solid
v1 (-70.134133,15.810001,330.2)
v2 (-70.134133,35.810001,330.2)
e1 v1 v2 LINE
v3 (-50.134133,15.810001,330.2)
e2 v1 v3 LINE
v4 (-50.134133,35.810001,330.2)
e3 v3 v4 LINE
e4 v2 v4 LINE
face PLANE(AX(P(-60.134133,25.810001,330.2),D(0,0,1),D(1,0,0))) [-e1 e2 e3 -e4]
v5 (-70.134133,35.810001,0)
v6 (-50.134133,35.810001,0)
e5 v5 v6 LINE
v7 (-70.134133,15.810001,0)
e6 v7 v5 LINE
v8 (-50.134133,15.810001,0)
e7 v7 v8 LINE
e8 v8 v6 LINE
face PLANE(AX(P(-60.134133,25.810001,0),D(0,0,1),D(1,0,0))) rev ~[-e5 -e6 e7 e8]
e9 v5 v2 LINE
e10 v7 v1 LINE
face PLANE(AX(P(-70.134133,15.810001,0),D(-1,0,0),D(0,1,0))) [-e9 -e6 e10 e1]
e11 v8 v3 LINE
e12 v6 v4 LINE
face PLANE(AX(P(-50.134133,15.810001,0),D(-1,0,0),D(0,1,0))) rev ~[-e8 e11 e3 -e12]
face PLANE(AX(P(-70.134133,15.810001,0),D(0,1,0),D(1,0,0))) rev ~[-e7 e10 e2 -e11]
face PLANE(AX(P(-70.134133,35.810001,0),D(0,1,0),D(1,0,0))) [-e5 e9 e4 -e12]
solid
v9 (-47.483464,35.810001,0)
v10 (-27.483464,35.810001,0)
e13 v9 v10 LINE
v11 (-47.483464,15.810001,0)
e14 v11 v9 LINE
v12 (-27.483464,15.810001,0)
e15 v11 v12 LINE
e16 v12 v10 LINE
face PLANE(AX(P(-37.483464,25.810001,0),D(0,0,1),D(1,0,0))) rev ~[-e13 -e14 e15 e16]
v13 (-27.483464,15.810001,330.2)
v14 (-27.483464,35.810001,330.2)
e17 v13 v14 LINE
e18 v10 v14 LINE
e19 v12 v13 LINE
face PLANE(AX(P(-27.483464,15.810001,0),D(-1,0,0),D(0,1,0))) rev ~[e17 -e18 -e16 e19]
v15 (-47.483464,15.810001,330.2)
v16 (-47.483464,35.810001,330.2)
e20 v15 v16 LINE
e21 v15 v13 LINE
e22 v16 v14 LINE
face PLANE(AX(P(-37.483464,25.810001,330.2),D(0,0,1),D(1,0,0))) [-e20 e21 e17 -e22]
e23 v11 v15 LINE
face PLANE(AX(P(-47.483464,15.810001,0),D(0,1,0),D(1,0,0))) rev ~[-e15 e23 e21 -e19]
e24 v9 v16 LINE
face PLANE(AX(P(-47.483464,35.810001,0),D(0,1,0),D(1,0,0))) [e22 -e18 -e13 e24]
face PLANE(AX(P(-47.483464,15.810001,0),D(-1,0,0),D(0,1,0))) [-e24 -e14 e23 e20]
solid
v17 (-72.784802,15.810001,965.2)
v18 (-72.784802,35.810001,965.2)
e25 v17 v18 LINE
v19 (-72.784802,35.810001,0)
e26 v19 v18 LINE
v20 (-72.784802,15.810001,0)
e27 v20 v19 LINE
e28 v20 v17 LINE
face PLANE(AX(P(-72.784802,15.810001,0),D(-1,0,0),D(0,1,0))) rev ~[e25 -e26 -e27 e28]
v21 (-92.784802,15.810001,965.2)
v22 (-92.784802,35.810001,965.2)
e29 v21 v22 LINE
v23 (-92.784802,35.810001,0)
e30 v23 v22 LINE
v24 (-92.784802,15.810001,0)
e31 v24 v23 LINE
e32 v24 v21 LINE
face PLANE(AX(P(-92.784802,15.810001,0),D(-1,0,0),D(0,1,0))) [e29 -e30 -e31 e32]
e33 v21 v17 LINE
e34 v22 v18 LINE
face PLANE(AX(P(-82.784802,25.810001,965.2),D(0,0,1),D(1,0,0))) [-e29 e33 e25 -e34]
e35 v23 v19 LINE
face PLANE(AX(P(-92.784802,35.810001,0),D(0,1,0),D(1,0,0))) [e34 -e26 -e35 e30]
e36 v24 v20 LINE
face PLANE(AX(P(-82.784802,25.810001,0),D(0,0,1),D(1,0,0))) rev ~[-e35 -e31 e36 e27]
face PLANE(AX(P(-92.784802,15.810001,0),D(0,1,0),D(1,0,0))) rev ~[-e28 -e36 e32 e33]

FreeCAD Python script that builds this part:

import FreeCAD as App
import Part
import Sketcher
Q = App.Units.Quantity


def add_polygon(sketch, points):
    """Adds a closed chain of lines whose ends are joined by coincident constraints."""
    first, n = sketch.GeometryCount, len(points)
    for a, b in zip(points, points[1:] + points[:1]):
        sketch.addGeometry(Part.LineSegment(App.Vector(*a, 0), App.Vector(*b, 0)), False)
    for i in range(n):
        sketch.addConstraint(Sketcher.Constraint("Coincident", first + i, 2, first + (i + 1) % n, 1))

doc = App.newDocument("Part")
body = doc.addObject("PartDesign::Body", "Body")

sketch1 = doc.addObject("Sketcher::SketchObject", "Sketch")
body.addObject(sketch1)
sketch1.AttachmentSupport = (doc.XY_Plane, [""])
sketch1.MapMode = "FlatFace"
add_polygon(sketch1, [(-93, 36), (-93, 16), (-73, 16), (-73, 36)])
sketch1.addConstraint(Sketcher.Constraint("Vertical", 0))
sketch1.addConstraint(Sketcher.Constraint("Horizontal", 1))
sketch1.addConstraint(Sketcher.Constraint("Vertical", 2))
sketch1.addConstraint(Sketcher.Constraint("Horizontal", 3))
sketch1.addConstraint(Sketcher.Constraint("Equal", 3, 0))
sketch1.addConstraint(Sketcher.Constraint("DistanceX", 1, 1, 1, 2, 20.0))
sketch1.addConstraint(Sketcher.Constraint("DistanceX", 0, 2, -1, 1, 92.784802))
sketch1.addConstraint(Sketcher.Constraint("DistanceY", -1, 1, 0, 2, 15.810001))
pad1 = doc.addObject("PartDesign::Pad", "Pad")
body.addObject(pad1)
pad1.Profile = sketch1
pad1.Length = Q("38 in")
body2 = doc.addObject("PartDesign::Body", "Body001")

sketch2 = doc.addObject("Sketcher::SketchObject", "Sketch001")
body2.addObject(sketch2)
sketch2.AttachmentSupport = (doc.getObject("XY_Plane001"), [""])
sketch2.MapMode = "FlatFace"
add_polygon(sketch2, [(-70, 36), (-70, 16), (-50, 16), (-50, 36)])
sketch2.addConstraint(Sketcher.Constraint("Vertical", 0))
sketch2.addConstraint(Sketcher.Constraint("Horizontal", 1))
sketch2.addConstraint(Sketcher.Constraint("Vertical", 2))
sketch2.addConstraint(Sketcher.Constraint("Horizontal", 3))
sketch2.addConstraint(Sketcher.Constraint("Equal", 3, 0))
sketch2.addConstraint(Sketcher.Constraint("DistanceX", 1, 1, 1, 2, 20.0))
sketch2.addConstraint(Sketcher.Constraint("DistanceY", -1, 1, 0, 2, 15.810001))
sketch2.addConstraint(Sketcher.Constraint("DistanceX", 0, 2, -1, 1, 70.134133))
pad2 = doc.addObject("PartDesign::Pad", "Pad001")
body2.addObject(pad2)
pad2.Profile = sketch2
pad2.Length = Q("13 in")
body3 = doc.addObject("PartDesign::Body", "Body002")

sketch3 = doc.addObject("Sketcher::SketchObject", "Sketch002")
body3.addObject(sketch3)
sketch3.AttachmentSupport = (doc.getObject("XY_Plane002"), [""])
sketch3.MapMode = "FlatFace"
add_polygon(sketch3, [(-47, 36), (-47, 16), (-27, 16), (-27, 36)])
sketch3.addConstraint(Sketcher.Constraint("Vertical", 0))
sketch3.addConstraint(Sketcher.Constraint("Horizontal", 1))
sketch3.addConstraint(Sketcher.Constraint("Vertical", 2))
sketch3.addConstraint(Sketcher.Constraint("Horizontal", 3))
sketch3.addConstraint(Sketcher.Constraint("Equal", 3, 0))
sketch3.addConstraint(Sketcher.Constraint("DistanceX", 1, 1, 1, 2, 20.0))
sketch3.addConstraint(Sketcher.Constraint("DistanceY", -1, 1, 0, 2, 15.810001))
sketch3.addConstraint(Sketcher.Constraint("DistanceX", 0, 2, -1, 1, 47.483464))
pad3 = doc.addObject("PartDesign::Pad", "Pad002")
body3.addObject(pad3)
pad3.Profile = sketch3
pad3.Length = Q("13 in")

doc.recompute()
